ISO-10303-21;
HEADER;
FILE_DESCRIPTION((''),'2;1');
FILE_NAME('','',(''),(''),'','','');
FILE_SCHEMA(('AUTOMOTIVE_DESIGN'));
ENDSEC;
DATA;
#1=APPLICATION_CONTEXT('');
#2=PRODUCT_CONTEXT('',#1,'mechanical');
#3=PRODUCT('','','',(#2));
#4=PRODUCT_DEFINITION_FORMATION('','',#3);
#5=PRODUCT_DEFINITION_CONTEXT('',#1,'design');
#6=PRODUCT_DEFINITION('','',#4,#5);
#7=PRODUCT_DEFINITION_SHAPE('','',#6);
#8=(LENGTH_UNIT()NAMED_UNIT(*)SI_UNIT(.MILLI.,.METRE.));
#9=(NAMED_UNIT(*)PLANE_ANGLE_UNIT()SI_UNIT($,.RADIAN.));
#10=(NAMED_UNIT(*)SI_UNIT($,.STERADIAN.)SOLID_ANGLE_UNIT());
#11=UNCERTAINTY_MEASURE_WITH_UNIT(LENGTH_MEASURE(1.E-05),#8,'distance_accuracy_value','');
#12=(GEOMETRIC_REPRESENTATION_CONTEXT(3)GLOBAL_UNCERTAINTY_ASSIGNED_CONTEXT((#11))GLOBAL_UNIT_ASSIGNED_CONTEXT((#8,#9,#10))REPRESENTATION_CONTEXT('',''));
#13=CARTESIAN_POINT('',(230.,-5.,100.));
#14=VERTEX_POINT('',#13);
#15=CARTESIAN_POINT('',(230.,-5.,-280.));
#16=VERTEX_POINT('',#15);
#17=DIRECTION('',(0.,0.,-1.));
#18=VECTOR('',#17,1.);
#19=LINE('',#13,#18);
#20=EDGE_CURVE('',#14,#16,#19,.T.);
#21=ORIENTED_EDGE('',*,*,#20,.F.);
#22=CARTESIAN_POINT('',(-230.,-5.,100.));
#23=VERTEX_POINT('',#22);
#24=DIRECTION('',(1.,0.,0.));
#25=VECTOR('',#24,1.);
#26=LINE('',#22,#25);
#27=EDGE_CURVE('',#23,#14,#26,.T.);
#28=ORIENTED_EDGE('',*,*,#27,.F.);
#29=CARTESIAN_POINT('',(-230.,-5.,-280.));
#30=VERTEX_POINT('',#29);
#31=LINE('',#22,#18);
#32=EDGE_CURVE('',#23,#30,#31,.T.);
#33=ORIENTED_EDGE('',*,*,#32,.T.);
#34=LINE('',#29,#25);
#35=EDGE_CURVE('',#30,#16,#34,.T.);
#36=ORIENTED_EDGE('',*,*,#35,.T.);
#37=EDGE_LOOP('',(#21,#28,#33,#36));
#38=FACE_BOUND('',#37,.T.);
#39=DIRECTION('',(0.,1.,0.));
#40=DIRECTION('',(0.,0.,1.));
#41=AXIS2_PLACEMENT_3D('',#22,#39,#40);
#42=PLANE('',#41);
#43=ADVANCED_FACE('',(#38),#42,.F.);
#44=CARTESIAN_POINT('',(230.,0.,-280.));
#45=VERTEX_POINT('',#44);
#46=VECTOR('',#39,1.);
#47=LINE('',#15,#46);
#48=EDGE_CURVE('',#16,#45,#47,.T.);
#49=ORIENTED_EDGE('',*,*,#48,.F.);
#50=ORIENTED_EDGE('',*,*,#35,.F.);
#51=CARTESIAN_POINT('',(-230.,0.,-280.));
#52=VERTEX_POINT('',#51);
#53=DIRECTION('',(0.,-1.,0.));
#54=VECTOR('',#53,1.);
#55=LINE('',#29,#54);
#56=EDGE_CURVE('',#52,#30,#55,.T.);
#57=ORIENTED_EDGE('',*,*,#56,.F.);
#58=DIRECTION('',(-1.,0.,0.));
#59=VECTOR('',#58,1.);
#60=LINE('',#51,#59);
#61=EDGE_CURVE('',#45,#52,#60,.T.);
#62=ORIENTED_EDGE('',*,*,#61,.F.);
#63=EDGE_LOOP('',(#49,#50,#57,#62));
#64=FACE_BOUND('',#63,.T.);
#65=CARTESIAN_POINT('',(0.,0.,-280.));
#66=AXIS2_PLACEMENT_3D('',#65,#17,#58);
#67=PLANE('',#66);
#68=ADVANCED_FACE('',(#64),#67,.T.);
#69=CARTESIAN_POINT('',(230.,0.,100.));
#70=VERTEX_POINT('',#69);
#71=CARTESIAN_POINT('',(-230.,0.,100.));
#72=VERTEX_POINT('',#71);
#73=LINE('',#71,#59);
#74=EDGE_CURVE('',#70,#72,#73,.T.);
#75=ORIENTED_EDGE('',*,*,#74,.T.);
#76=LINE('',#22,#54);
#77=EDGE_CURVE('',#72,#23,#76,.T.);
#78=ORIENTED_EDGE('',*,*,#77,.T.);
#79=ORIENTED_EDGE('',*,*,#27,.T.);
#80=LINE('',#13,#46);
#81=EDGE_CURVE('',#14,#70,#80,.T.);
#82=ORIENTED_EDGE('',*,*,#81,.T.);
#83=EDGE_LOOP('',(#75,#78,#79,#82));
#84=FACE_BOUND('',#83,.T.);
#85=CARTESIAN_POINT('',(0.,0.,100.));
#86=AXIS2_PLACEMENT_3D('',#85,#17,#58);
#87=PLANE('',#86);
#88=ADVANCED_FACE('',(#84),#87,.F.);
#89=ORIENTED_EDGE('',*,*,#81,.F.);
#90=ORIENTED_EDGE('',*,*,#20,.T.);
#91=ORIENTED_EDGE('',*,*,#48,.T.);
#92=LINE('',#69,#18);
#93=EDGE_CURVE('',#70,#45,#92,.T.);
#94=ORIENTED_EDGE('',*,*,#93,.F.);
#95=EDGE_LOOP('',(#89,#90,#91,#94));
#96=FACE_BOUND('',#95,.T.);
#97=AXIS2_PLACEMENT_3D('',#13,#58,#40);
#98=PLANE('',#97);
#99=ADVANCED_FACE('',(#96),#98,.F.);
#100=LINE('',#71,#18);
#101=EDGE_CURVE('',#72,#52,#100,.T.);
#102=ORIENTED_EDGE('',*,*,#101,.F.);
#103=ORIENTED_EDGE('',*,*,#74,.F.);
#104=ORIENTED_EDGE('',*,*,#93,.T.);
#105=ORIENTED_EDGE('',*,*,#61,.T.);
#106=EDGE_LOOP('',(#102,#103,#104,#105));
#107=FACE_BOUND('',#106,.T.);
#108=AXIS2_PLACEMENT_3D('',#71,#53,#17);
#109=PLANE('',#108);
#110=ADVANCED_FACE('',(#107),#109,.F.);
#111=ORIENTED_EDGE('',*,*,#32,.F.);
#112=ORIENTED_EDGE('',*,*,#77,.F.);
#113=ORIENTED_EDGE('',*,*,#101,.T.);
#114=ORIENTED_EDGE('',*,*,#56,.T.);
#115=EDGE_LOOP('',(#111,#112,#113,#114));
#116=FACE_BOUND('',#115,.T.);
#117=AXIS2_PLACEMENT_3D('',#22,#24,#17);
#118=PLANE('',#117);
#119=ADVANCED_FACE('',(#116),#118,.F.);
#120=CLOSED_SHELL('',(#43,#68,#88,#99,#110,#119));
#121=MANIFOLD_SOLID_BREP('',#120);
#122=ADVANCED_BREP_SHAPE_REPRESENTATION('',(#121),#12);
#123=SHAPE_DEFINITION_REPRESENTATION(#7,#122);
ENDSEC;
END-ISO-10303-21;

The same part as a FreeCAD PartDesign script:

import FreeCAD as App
import Part
import Sketcher
from FreeCAD import Vector


def add_polygon(sketch, points):
    """Adds a closed chain of lines whose ends are joined by coincident constraints."""
    first, n = sketch.GeometryCount, len(points)
    for a, b in zip(points, points[1:] + points[:1]):
        sketch.addGeometry(Part.LineSegment(App.Vector(*a, 0), App.Vector(*b, 0)), False)
    for i in range(n):
        sketch.addConstraint(Sketcher.Constraint("Coincident", first + i, 2, first + (i + 1) % n, 1))

doc = App.newDocument("Part")
body = doc.addObject("PartDesign::Body", "Body")

# Sketch on XY plane
sketch1 = doc.addObject("Sketcher::SketchObject", "Sketch")
body.addObject(sketch1)
sketch1.AttachmentSupport = (doc.XY_Plane, [""])
sketch1.MapMode = "FlatFace"
sketch1.AttachmentOffset = App.Placement(Vector(0, 0, -280), App.Rotation())
add_polygon(sketch1, [(-230, 0), (-230, -5), (230, -5), (230, 0)])  # lines 0-3
sketch1.addConstraint([
    Sketcher.Constraint("Vertical", 0),
    Sketcher.Constraint("Horizontal", 1),
    Sketcher.Constraint("Vertical", 2),
    Sketcher.Constraint("Horizontal", 3),
    Sketcher.Constraint("Symmetric", 2, 2, 3, 2, -1, 1),
    Sketcher.Constraint("DistanceX", 1, 1, 1, 2, 460.0),
    Sketcher.Constraint("DistanceY", 0, 2, 0, 1, 5.0),
])
pad1 = doc.addObject("PartDesign::Pad", "Pad")
body.addObject(pad1)
pad1.Profile = sketch1
pad1.Length = 380

doc.recompute()
